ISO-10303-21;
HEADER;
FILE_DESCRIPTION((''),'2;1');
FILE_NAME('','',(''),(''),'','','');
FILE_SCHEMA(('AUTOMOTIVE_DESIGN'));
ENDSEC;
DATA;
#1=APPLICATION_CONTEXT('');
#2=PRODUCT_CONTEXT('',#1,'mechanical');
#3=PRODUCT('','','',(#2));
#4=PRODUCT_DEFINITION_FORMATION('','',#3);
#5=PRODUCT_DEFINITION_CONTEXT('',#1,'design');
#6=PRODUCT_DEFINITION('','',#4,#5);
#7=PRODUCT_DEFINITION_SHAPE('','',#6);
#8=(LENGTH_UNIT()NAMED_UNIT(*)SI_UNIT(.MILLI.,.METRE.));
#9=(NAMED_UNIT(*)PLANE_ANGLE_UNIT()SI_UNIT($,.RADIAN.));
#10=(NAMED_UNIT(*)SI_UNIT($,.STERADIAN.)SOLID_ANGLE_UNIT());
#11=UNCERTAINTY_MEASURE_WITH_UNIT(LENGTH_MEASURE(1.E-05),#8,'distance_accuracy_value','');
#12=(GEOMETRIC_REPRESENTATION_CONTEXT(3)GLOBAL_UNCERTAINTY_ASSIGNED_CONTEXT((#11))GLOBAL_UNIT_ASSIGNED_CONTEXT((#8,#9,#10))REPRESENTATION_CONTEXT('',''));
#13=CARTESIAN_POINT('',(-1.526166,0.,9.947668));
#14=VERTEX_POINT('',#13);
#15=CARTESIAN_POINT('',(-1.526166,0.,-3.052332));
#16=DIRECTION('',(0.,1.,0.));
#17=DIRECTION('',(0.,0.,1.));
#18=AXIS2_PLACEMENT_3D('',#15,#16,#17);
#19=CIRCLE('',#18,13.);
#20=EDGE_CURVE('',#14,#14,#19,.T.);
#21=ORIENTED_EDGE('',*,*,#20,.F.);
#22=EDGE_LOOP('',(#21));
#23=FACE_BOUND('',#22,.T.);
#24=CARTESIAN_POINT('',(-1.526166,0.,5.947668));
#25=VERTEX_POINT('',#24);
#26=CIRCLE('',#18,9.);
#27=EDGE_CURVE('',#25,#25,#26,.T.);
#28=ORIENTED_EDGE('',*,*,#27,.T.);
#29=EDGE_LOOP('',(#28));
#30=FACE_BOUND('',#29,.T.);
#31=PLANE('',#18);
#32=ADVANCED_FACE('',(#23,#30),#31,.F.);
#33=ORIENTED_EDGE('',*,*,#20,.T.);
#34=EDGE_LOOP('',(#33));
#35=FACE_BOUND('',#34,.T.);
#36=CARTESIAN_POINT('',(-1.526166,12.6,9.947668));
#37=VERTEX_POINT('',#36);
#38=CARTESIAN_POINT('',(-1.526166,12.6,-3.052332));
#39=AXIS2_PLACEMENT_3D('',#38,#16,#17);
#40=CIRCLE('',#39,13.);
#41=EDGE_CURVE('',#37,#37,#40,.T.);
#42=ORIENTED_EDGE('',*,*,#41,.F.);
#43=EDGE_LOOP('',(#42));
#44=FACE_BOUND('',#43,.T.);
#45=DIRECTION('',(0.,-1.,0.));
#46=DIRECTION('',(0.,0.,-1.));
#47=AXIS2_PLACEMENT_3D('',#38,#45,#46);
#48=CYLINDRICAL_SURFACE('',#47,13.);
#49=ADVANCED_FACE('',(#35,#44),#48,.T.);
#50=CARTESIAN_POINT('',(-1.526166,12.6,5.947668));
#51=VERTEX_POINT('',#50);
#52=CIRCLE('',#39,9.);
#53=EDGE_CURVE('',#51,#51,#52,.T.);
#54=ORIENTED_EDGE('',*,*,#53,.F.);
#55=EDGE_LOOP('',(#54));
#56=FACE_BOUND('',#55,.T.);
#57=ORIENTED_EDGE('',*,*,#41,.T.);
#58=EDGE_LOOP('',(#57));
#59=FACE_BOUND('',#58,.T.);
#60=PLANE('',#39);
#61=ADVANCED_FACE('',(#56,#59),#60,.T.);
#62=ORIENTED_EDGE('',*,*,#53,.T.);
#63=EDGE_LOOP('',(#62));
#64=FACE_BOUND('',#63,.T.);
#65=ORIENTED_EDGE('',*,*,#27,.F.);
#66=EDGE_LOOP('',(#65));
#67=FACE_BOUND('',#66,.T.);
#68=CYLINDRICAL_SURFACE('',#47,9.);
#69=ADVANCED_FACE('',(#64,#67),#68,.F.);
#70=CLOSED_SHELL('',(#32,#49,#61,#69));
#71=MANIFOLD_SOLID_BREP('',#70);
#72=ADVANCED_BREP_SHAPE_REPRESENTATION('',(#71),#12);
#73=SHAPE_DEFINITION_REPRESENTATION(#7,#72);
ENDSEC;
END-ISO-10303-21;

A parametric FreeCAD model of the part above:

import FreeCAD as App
import Part
import Sketcher

doc = App.newDocument("Part")
params = doc.addObject("Spreadsheet::Sheet", "Params")
for row, (alias, value) in enumerate([
    ("sketch1_diameter", "26 mm"),
    ("sketch1_diameter2", "18 mm"),
    ("pad1_length", "12.6 mm"),
], start=1):
    params.set(f"A{row}", alias)
    params.set(f"B{row}", "=" + value)
    params.setAlias(f"B{row}", alias)

body = doc.addObject("PartDesign::Body", "Body")

# Sketch on XZ plane
sketch1 = body.newObject("Sketcher::SketchObject", "Sketch")
sketch1.AttachmentSupport = (doc.getObject("XZ_Plane"), [""])
sketch1.MapMode = "FlatFace"
sketch1.addGeometry([
    Part.Circle(App.Vector(-2, -3, 0), App.Vector(0, 0, 1), 13),
    Part.Circle(App.Vector(-2, -3, 0), App.Vector(0, 0, 1), 9),
], False)
sketch1.addConstraint([
    Sketcher.Constraint("Coincident", 1, 3, 0, 3),
    Sketcher.Constraint("Diameter", 0, 26.0),
    Sketcher.Constraint("Diameter", 1, 18.0),
    Sketcher.Constraint("DistanceY", 0, 3, -1, 1, 3.052332),
    Sketcher.Constraint("DistanceX", 0, 3, -1, 1, 1.526166),
])
sketch1.setExpression("Constraints[1]", "Params.sketch1_diameter")
sketch1.setExpression("Constraints[2]", "Params.sketch1_diameter2")
pad1 = body.newObject("PartDesign::Pad", "Pad")
pad1.Profile = sketch1
pad1.setExpression("Length", "Params.pad1_length")
pad1.Reversed = True

doc.recompute()
